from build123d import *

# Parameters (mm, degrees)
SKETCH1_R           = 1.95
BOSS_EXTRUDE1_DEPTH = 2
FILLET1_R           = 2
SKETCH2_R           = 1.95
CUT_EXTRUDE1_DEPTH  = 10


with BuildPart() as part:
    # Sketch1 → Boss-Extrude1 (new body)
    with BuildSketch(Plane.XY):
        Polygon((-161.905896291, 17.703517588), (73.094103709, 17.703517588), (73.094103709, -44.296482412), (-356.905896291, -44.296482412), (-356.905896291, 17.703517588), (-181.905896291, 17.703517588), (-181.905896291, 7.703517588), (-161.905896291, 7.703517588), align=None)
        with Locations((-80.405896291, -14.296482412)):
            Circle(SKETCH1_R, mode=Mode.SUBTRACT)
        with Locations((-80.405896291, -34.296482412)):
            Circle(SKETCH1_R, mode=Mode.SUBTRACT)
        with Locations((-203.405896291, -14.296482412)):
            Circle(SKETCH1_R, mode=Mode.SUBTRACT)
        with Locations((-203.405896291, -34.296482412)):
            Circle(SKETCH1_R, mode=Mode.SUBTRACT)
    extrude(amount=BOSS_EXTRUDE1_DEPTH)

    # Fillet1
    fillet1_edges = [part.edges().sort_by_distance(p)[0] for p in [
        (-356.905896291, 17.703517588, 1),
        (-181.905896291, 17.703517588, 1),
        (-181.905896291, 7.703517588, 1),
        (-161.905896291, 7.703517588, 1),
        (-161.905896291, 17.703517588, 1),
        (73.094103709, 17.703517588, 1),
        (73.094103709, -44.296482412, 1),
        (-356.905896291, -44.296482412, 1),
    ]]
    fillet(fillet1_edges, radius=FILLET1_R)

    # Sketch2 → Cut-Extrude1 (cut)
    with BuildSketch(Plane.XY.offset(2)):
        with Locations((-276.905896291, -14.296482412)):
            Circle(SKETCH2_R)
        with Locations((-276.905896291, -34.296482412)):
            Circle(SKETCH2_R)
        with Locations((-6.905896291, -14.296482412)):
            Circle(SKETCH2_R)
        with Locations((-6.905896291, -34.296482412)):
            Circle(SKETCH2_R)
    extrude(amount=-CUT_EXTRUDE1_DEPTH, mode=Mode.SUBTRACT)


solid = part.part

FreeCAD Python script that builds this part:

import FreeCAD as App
import Part
import Sketcher


def edges_at(feature, points):
    """Names of the edges that pass closest to the given points."""
    edges = feature.Shape.Edges
    near = lambda p: min(range(len(edges)), key=lambda i: edges[i].distToShape(Part.Vertex(*p))[0])
    return sorted({f"Edge{near(p) + 1}" for p in points})


def add_polygon(sketch, points):
    """Adds a closed chain of lines whose ends are joined by coincident constraints."""
    first, n = sketch.GeometryCount, len(points)
    for a, b in zip(points, points[1:] + points[:1]):
        sketch.addGeometry(Part.LineSegment(App.Vector(*a, 0), App.Vector(*b, 0)), False)
    for i in range(n):
        sketch.addConstraint(Sketcher.Constraint("Coincident", first + i, 2, first + (i + 1) % n, 1))

doc = App.newDocument("Part")
body = doc.addObject("PartDesign::Body", "Body")

# Sketch on XY plane
sketch1 = doc.addObject("Sketcher::SketchObject", "Sketch")
body.addObject(sketch1)
sketch1.AttachmentSupport = (doc.XY_Plane, [""])
sketch1.MapMode = "FlatFace"
add_polygon(sketch1, [(73.1, 17.7), (-161.9, 17.7), (-161.9, 7.7), (-181.9, 7.7), (-181.9, 17.7), (-356.9, 17.7), (-356.9, -44.3), (73.1, -44.3)])  # lines 0-7
sketch1.addGeometry(Part.Circle(App.Vector(-80.4, -34.3, 0), App.Vector(0, 0, 1), 1.9), False)  # 8
sketch1.addGeometry(Part.Circle(App.Vector(-203.4, -34.3, 0), App.Vector(0, 0, 1), 1.9), False)  # 9
sketch1.addGeometry(Part.Circle(App.Vector(-80.4, -14.3, 0), App.Vector(0, 0, 1), 1.9), False)  # 10
sketch1.addGeometry(Part.Circle(App.Vector(-203.4, -14.3, 0), App.Vector(0, 0, 1), 1.9), False)  # 11
sketch1.addConstraint(Sketcher.Constraint("Horizontal", 0))
sketch1.addConstraint(Sketcher.Constraint("Vertical", 1))
sketch1.addConstraint(Sketcher.Constraint("Horizontal", 2))
sketch1.addConstraint(Sketcher.Constraint("Vertical", 3))
sketch1.addConstraint(Sketcher.Constraint("Horizontal", 4))
sketch1.addConstraint(Sketcher.Constraint("Vertical", 5))
sketch1.addConstraint(Sketcher.Constraint("Horizontal", 6))
sketch1.addConstraint(Sketcher.Constraint("Vertical", 7))
sketch1.addConstraint(Sketcher.Constraint("Equal", 8, 9))
sketch1.addConstraint(Sketcher.Constraint("Equal", 9, 10))
sketch1.addConstraint(Sketcher.Constraint("Equal", 10, 11))
sketch1.addConstraint(Sketcher.Constraint("Horizontal", 8, 3, 9, 3))
sketch1.addConstraint(Sketcher.Constraint("Horizontal", 10, 3, 11, 3))
sketch1.addConstraint(Sketcher.Constraint("Horizontal", 0, 2, 3, 2))
sketch1.addConstraint(Sketcher.Constraint("Vertical", 8, 3, 10, 3))
sketch1.addConstraint(Sketcher.Constraint("Vertical", 9, 3, 11, 3))
sketch1.addConstraint(Sketcher.Constraint("Diameter", 8, 3.9))
sketch1.addConstraint(Sketcher.Constraint("DistanceX", 0, 2, 0, 1, 235.0))
sketch1.addConstraint(Sketcher.Constraint("DistanceX", 2, 2, 2, 1, 20.0))
sketch1.addConstraint(Sketcher.Constraint("DistanceX", 4, 2, 4, 1, 175.0))
sketch1.addConstraint(Sketcher.Constraint("DistanceY", 1, 2, 1, 1, 10.0))
sketch1.addConstraint(Sketcher.Constraint("DistanceY", 5, 2, 5, 1, 62.0))
sketch1.addConstraint(Sketcher.Constraint("DistanceX", 9, 3, 8, 3, 123.0))
sketch1.addConstraint(Sketcher.Constraint("DistanceY", 8, 3, 10, 3, 20.0))
sketch1.addConstraint(Sketcher.Constraint("DistanceY", 11, 3, 0, 2, 32.0))
sketch1.addConstraint(Sketcher.Constraint("DistanceX", 11, 3, 0, 2, 41.5))
sketch1.addConstraint(Sketcher.Constraint("DistanceX", 8, 3, -1, 1, 80.405896))
sketch1.addConstraint(Sketcher.Constraint("DistanceY", 8, 3, -1, 1, 34.296482))
pad1 = doc.addObject("PartDesign::Pad", "Pad")
body.addObject(pad1)
pad1.Profile = sketch1
pad1.Length = 2
doc.recompute()

fillet = doc.addObject("PartDesign::Fillet", "Fillet")
body.addObject(fillet)
fillet.Base = (pad1, edges_at(pad1, [
    (-356.906, 17.704, 1),
    (-181.906, 17.704, 1),
    (-181.906, 7.704, 1),
    (-161.906, 7.704, 1),
    (-161.906, 17.704, 1),
    (73.094, 17.704, 1),
    (73.094, -44.296, 1),
    (-356.906, -44.296, 1),
]))
fillet.Radius = 2

# Sketch on XY plane
sketch2 = doc.addObject("Sketcher::SketchObject", "Sketch001")
body.addObject(sketch2)
sketch2.AttachmentSupport = (doc.XY_Plane, [""])
sketch2.MapMode = "FlatFace"
sketch2.AttachmentOffset = App.Placement(App.Vector(0, 0, 2), App.Rotation())
sketch2.addGeometry(Part.Circle(App.Vector(-276.9, -14.3, 0), App.Vector(0, 0, 1), 1.9), False)
sketch2.addGeometry(Part.Circle(App.Vector(-276.9, -34.3, 0), App.Vector(0, 0, 1), 1.9), False)
sketch2.addGeometry(Part.Circle(App.Vector(-6.9, -14.3, 0), App.Vector(0, 0, 1), 1.9), False)
sketch2.addGeometry(Part.Circle(App.Vector(-6.9, -34.3, 0), App.Vector(0, 0, 1), 1.9), False)
sketch2.addConstraint(Sketcher.Constraint("Equal", 0, 1))
sketch2.addConstraint(Sketcher.Constraint("Equal", 1, 2))
sketch2.addConstraint(Sketcher.Constraint("Equal", 2, 3))
sketch2.addConstraint(Sketcher.Constraint("Horizontal", 0, 3, 2, 3))
sketch2.addConstraint(Sketcher.Constraint("Horizontal", 1, 3, 3, 3))
sketch2.addConstraint(Sketcher.Constraint("Vertical", 0, 3, 1, 3))
sketch2.addConstraint(Sketcher.Constraint("Vertical", 2, 3, 3, 3))
sketch2.addConstraint(Sketcher.Constraint("Diameter", 0, 3.9))
sketch2.addConstraint(Sketcher.Constraint("DistanceY", 1, 3, 0, 3, 20.0))
sketch2.addConstraint(Sketcher.Constraint("DistanceX", 0, 3, 2, 3, 270.0))
sketch2.addConstraint(Sketcher.Constraint("DistanceX", 0, 3, -1, 1, 276.905896))
sketch2.addConstraint(Sketcher.Constraint("DistanceY", 0, 3, -1, 1, 14.296482))
pocket1 = doc.addObject("PartDesign::Pocket", "Pocket")
body.addObject(pocket1)
pocket1.Profile = sketch2
pocket1.Length = 10

doc.recompute()
